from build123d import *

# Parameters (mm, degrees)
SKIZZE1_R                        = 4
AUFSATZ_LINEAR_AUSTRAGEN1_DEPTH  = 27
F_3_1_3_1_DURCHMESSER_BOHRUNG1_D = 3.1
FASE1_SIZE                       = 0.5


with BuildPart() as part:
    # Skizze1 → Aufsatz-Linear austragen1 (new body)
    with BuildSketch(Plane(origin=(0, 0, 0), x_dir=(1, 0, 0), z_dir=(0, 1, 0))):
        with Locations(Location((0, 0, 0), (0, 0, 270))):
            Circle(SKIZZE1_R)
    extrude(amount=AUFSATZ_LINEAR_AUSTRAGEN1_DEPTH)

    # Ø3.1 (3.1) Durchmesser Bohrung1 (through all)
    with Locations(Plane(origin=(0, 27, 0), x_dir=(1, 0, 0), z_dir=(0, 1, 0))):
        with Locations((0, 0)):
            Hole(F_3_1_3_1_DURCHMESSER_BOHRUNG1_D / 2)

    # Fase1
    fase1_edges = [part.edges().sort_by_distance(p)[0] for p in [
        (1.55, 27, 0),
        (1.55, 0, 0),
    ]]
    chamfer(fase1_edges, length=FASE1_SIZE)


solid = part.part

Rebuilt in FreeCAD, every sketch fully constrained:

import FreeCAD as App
import Part
import Sketcher
from FreeCAD import Vector
Q = App.Units.Quantity


def edges_at(feature, points):
    """Names of the edges that pass closest to the given points."""
    edges = feature.Shape.Edges
    near = lambda p: min(range(len(edges)), key=lambda i: edges[i].distToShape(Part.Vertex(*p))[0])
    return sorted({f"Edge{near(p) + 1}" for p in points})

doc = App.newDocument("Part")
params = doc.addObject("Spreadsheet::Sheet", "Params")
for row, (alias, value) in enumerate([
    ("sketch1_diameter", "8 mm"),
    ("pad1_length", "27 mm"),
    ("sketch2_diameter", "3.1 mm"),
    ("hole_diameter", "3.1 mm"),
    ("chamfer_size", "0.5 mm"),
], start=1):
    params.set(f"A{row}", alias)
    params.set(f"B{row}", "=" + value)
    params.setAlias(f"B{row}", alias)

body = doc.addObject("PartDesign::Body", "Body")

sketch1 = body.newObject("Sketcher::SketchObject", "Sketch")
sketch1.AttachmentSupport = (doc.getObject("XZ_Plane"), [""])
sketch1.MapMode = "FlatFace"
sketch1.addGeometry(Part.Circle(Vector(0, 0, 0), Vector(0, 0, 1), 4), False)
sketch1.addConstraint([
    Sketcher.Constraint("Coincident", 0, 3, -1, 1),
    Sketcher.Constraint("Diameter", 0, Q("8 mm")),
])
sketch1.setExpression("Constraints[1]", "Params.sketch1_diameter")
pad1 = body.newObject("PartDesign::Pad", "Pad")
pad1.Profile = sketch1
pad1.setExpression("Length", "Params.pad1_length")
pad1.Reversed = True

sketch2 = body.newObject("Sketcher::SketchObject", "Sketch001")
sketch2.AttachmentSupport = (doc.getObject("XZ_Plane"), [""])
sketch2.MapMode = "FlatFace"
sketch2.AttachmentOffset = App.Placement(Vector(0, 0, -27), App.Rotation())
sketch2.addGeometry(Part.Circle(Vector(0, 0, 0), Vector(0, 0, 1), 1.6), False)
sketch2.addConstraint([
    Sketcher.Constraint("Coincident", 0, 3, -1, 1),
    Sketcher.Constraint("Diameter", 0, Q("3.1 mm")),
])
sketch2.setExpression("Constraints[1]", "Params.sketch2_diameter")
doc.recompute()
hole = body.newObject("PartDesign::Hole", "Hole")
hole.Profile = sketch2
hole.ThreadType = "None"
hole.setExpression("Diameter", "Params.hole_diameter")
hole.DepthType = "ThroughAll"
hole.Reversed = True
doc.recompute()

chamfer = body.newObject("PartDesign::Chamfer", "Chamfer")
chamfer.Base = (hole, edges_at(hole, [(1.55, 27, 0), (1.55, 0, 0)]))
chamfer.setExpression("Size", "Params.chamfer_size")

doc.recompute()
